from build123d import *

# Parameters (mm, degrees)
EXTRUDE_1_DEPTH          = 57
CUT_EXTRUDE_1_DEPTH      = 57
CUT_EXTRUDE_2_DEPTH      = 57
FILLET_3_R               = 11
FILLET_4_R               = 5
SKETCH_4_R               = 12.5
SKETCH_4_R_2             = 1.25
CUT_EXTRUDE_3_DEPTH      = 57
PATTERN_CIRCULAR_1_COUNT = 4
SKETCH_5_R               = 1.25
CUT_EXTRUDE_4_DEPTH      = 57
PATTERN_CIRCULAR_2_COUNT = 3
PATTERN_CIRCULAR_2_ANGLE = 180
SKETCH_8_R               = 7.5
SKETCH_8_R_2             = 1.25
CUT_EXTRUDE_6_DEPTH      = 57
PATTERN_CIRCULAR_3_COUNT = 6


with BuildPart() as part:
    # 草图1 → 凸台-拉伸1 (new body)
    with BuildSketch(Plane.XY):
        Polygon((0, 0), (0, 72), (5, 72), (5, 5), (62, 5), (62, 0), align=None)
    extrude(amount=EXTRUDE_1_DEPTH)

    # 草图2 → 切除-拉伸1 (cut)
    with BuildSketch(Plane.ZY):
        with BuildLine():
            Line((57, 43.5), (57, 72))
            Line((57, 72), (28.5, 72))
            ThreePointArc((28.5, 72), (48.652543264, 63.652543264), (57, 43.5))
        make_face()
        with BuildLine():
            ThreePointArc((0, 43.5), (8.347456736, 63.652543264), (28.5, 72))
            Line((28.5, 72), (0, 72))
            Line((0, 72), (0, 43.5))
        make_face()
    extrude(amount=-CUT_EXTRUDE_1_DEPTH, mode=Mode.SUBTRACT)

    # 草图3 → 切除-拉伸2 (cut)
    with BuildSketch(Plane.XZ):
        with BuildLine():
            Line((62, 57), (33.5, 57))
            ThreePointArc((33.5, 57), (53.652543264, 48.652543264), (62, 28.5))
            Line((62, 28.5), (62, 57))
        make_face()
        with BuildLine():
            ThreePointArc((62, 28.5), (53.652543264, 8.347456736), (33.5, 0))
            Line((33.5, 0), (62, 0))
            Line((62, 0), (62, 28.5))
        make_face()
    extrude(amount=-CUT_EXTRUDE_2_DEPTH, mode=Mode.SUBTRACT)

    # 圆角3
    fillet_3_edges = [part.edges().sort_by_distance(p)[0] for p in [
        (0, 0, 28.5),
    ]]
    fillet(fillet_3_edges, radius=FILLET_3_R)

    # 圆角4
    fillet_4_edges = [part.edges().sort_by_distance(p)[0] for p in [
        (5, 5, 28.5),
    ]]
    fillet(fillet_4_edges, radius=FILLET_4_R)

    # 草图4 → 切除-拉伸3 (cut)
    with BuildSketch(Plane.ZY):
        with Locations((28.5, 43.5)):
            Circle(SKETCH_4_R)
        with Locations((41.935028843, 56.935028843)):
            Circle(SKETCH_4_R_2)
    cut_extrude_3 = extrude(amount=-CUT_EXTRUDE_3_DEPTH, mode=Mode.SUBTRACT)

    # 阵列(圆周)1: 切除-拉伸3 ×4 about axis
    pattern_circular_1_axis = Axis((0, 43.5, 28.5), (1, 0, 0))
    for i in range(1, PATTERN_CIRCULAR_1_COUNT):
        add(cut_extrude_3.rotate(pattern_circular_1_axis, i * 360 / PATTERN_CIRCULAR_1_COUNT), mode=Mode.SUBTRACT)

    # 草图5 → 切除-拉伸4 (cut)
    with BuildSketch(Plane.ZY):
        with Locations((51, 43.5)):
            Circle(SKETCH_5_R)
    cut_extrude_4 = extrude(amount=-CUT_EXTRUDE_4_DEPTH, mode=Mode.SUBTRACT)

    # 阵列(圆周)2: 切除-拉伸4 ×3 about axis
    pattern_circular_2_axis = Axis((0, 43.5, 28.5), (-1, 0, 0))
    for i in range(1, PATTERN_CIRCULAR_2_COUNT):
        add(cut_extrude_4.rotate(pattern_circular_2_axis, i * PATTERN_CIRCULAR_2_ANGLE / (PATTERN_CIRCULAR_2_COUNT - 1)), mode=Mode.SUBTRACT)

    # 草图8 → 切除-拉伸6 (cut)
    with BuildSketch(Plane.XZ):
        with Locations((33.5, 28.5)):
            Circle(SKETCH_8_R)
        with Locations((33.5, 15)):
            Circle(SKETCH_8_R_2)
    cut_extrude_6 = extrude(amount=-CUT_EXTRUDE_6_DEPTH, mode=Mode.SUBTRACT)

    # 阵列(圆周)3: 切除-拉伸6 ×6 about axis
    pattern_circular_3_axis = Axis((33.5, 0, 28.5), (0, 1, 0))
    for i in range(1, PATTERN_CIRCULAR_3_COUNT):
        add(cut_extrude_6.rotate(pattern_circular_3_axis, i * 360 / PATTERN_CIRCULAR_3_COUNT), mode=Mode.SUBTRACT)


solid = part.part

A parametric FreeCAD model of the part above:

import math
import FreeCAD as App
import Part
import Sketcher

V = App.Vector
Q = App.Units.Quantity


def edges_at(feature, points):
    """Names of the edges that pass closest to the given points."""
    edges = feature.Shape.Edges
    near = lambda p: min(range(len(edges)), key=lambda i: edges[i].distToShape(Part.Vertex(*p))[0])
    return sorted({f"Edge{near(p) + 1}" for p in points})


def add_polygon(sketch, points):
    """Adds a closed chain of lines whose ends are joined by coincident constraints."""
    first, n = sketch.GeometryCount, len(points)
    for a, b in zip(points, points[1:] + points[:1]):
        sketch.addGeometry(Part.LineSegment(App.Vector(*a, 0), App.Vector(*b, 0)), False)
    for i in range(n):
        sketch.addConstraint(Sketcher.Constraint("Coincident", first + i, 2, first + (i + 1) % n, 1))

doc = App.newDocument("Part")
body = doc.addObject("PartDesign::Body", "Body")

sketch1 = doc.addObject("Sketcher::SketchObject", "Sketch")
body.addObject(sketch1)
sketch1.AttachmentSupport = (doc.XY_Plane, [""])
sketch1.MapMode = "FlatFace"
add_polygon(sketch1, [(0, 72), (0, 0), (62, 0), (62, 5), (5, 5), (5, 72)])
sketch1.addConstraint(Sketcher.Constraint("Vertical", 0))
sketch1.addConstraint(Sketcher.Constraint("Horizontal", 1))
sketch1.addConstraint(Sketcher.Constraint("Vertical", 2))
sketch1.addConstraint(Sketcher.Constraint("Horizontal", 3))
sketch1.addConstraint(Sketcher.Constraint("Vertical", 4))
sketch1.addConstraint(Sketcher.Constraint("Horizontal", 5))
sketch1.addConstraint(Sketcher.Constraint("Coincident", 0, 2, -1, 1))
sketch1.addConstraint(Sketcher.Constraint("Equal", 5, 2))
sketch1.addConstraint(Sketcher.Constraint("DistanceX", 1, 1, 1, 2, Q("62 mm")))
sketch1.addConstraint(Sketcher.Constraint("DistanceX", 3, 2, 3, 1, Q("57 mm")))
sketch1.addConstraint(Sketcher.Constraint("DistanceY", 0, 2, 0, 1, Q("72 mm")))
pad1 = doc.addObject("PartDesign::Pad", "Pad")
body.addObject(pad1)
pad1.Profile = sketch1
pad1.Length = 57

sketch2 = doc.addObject("Sketcher::SketchObject", "Sketch001")
body.addObject(sketch2)
sketch2.AttachmentSupport = (doc.YZ_Plane, [""])
sketch2.MapMode = "FlatFace"
sketch2.addGeometry(Part.LineSegment(V(43.5, 57, 0), V(72, 57, 0)), False)
sketch2.addGeometry(Part.LineSegment(V(72, 57, 0), V(72, 28.5, 0)), False)
sketch2.addGeometry(Part.ArcOfCircle(Part.Circle(V(43.5, 28.5, 0), V(0, 0, 1), 28.5), math.radians(0), math.radians(90)), False)
sketch2.addGeometry(Part.ArcOfCircle(Part.Circle(V(43.5, 28.5, 0), V(0, 0, 1), 28.5), math.radians(-90), math.radians(0)), False)
sketch2.addGeometry(Part.LineSegment(V(72, 28.5, 0), V(72, 0, 0)), False)
sketch2.addGeometry(Part.LineSegment(V(72, 0, 0), V(43.5, 0, 0)), False)
sketch2.addConstraint(Sketcher.Constraint("Coincident", 0, 2, 1, 1))
sketch2.addConstraint(Sketcher.Constraint("Tangent", 1, 2, 2, 1))
sketch2.addConstraint(Sketcher.Constraint("Tangent", 2, 2, 0, 1))
sketch2.addConstraint(Sketcher.Constraint("Tangent", 3, 2, 4, 1))
sketch2.addConstraint(Sketcher.Constraint("Coincident", 4, 2, 5, 1))
sketch2.addConstraint(Sketcher.Constraint("Tangent", 5, 2, 3, 1))
sketch2.addConstraint(Sketcher.Constraint("Horizontal", 0))
sketch2.addConstraint(Sketcher.Constraint("Vertical", 1))
sketch2.addConstraint(Sketcher.Constraint("Vertical", 4))
sketch2.addConstraint(Sketcher.Constraint("Horizontal", 5))
sketch2.addConstraint(Sketcher.Constraint("Coincident", 3, 3, 2, 3))
sketch2.addConstraint(Sketcher.Constraint("Equal", 2, 3))
sketch2.addConstraint(Sketcher.Constraint("PointOnObject", 4, 2, -1))
sketch2.addConstraint(Sketcher.Constraint("Radius", 2, Q("28.5 mm")))
sketch2.addConstraint(Sketcher.Constraint("DistanceX", -1, 1, 0, 2, Q("72 mm")))
pocket1 = doc.addObject("PartDesign::Pocket", "Pocket")
body.addObject(pocket1)
pocket1.Profile = sketch2
pocket1.Length = 57
pocket1.Reversed = True

sketch3 = doc.addObject("Sketcher::SketchObject", "Sketch002")
body.addObject(sketch3)
sketch3.AttachmentSupport = (doc.XZ_Plane, [""])
sketch3.MapMode = "FlatFace"
sketch3.addGeometry(Part.LineSegment(V(62, 57, 0), V(33.5, 57, 0)), False)
sketch3.addGeometry(Part.ArcOfCircle(Part.Circle(V(33.5, 28.5, 0), V(0, 0, 1), 28.5), math.radians(0), math.radians(90)), False)
sketch3.addGeometry(Part.LineSegment(V(62, 28.5, 0), V(62, 57, 0)), False)
sketch3.addGeometry(Part.ArcOfCircle(Part.Circle(V(33.5, 28.5, 0), V(0, 0, 1), 28.5), math.radians(-90), math.radians(0)), False)
sketch3.addGeometry(Part.LineSegment(V(33.5, 0, 0), V(62, 0, 0)), False)
sketch3.addGeometry(Part.LineSegment(V(62, 0, 0), V(62, 28.5, 0)), False)
sketch3.addConstraint(Sketcher.Constraint("Tangent", 0, 2, 1, 2))
sketch3.addConstraint(Sketcher.Constraint("Tangent", 1, 1, 2, 1))
sketch3.addConstraint(Sketcher.Constraint("Coincident", 2, 2, 0, 1))
sketch3.addConstraint(Sketcher.Constraint("Tangent", 3, 1, 4, 1))
sketch3.addConstraint(Sketcher.Constraint("Coincident", 4, 2, 5, 1))
sketch3.addConstraint(Sketcher.Constraint("Tangent", 5, 2, 3, 2))
sketch3.addConstraint(Sketcher.Constraint("Horizontal", 0))
sketch3.addConstraint(Sketcher.Constraint("Vertical", 2))
sketch3.addConstraint(Sketcher.Constraint("Horizontal", 4))
sketch3.addConstraint(Sketcher.Constraint("Vertical", 5))
sketch3.addConstraint(Sketcher.Constraint("Coincident", 3, 3, 1, 3))
sketch3.addConstraint(Sketcher.Constraint("Equal", 1, 3))
sketch3.addConstraint(Sketcher.Constraint("PointOnObject", 3, 1, -1))
sketch3.addConstraint(Sketcher.Constraint("Radius", 1, Q("28.5 mm")))
sketch3.addConstraint(Sketcher.Constraint("DistanceX", -1, 1, 1, 1, Q("62 mm")))
pocket2 = doc.addObject("PartDesign::Pocket", "Pocket001")
body.addObject(pocket2)
pocket2.Profile = sketch3
pocket2.Length = 57
doc.recompute()

fillet = doc.addObject("PartDesign::Fillet", "Fillet")
body.addObject(fillet)
fillet.Base = (pocket2, edges_at(pocket2, [(0, 0, 28.5)]))
fillet.Radius = 11
doc.recompute()

fillet2 = doc.addObject("PartDesign::Fillet", "Fillet001")
body.addObject(fillet2)
fillet2.Base = (fillet, edges_at(fillet, [(5, 5, 28.5)]))
fillet2.Radius = 5

sketch4 = doc.addObject("Sketcher::SketchObject", "Sketch003")
body.addObject(sketch4)
sketch4.AttachmentSupport = (doc.YZ_Plane, [""])
sketch4.MapMode = "FlatFace"
sketch4.addGeometry(Part.Circle(V(43.5, 28.5, 0), V(0, 0, 1), 12.5), False)
sketch4.addGeometry(Part.Circle(V(56.935029, 41.935029, 0), V(0, 0, 1), 1.25), False)
sketch4.addConstraint(Sketcher.Constraint("Diameter", 0, Q("25 mm")))
sketch4.addConstraint(Sketcher.Constraint("Diameter", 1, Q("2.5 mm")))
sketch4.addConstraint(Sketcher.Constraint("DistanceX", -1, 1, 0, 3, Q("43.5 mm")))
sketch4.addConstraint(Sketcher.Constraint("DistanceY", -1, 1, 0, 3, Q("28.5 mm")))
sketch4.addConstraint(Sketcher.Constraint("DistanceX", -1, 1, 1, 3, Q("56.935029 mm")))
sketch4.addConstraint(Sketcher.Constraint("DistanceY", -1, 1, 1, 3, Q("41.935029 mm")))
pocket3 = doc.addObject("PartDesign::Pocket", "Pocket002")
body.addObject(pocket3)
pocket3.Profile = sketch4
pocket3.Length = 57
pocket3.Reversed = True
doc.recompute()

datumline = doc.addObject("PartDesign::Line", "DatumLine")
body.addObject(datumline)
datumline.Placement = App.Placement(V(0, 43.5, 28.5), App.Rotation(V(0, 0, 1), V(1, 0, 0)))
polarpattern = doc.addObject("PartDesign::PolarPattern", "PolarPattern")
body.addObject(polarpattern)
polarpattern.Originals = [pocket3]
polarpattern.Axis = (datumline, [""])
polarpattern.Angle = 360
polarpattern.Occurrences = 4
body.Tip = polarpattern

sketch5 = doc.addObject("Sketcher::SketchObject", "Sketch004")
body.addObject(sketch5)
sketch5.AttachmentSupport = (doc.YZ_Plane, [""])
sketch5.MapMode = "FlatFace"
sketch5.addGeometry(Part.Circle(V(43.5, 51, 0), V(0, 0, 1), 1.25), False)
sketch5.addConstraint(Sketcher.Constraint("Diameter", 0, Q("2.5 mm")))
sketch5.addConstraint(Sketcher.Constraint("DistanceY", -1, 1, 0, 3, Q("51 mm")))
sketch5.addConstraint(Sketcher.Constraint("DistanceX", -1, 1, 0, 3, Q("43.5 mm")))
pocket4 = doc.addObject("PartDesign::Pocket", "Pocket003")
body.addObject(pocket4)
pocket4.Profile = sketch5
pocket4.Length = 57
pocket4.Reversed = True
doc.recompute()

datumline2 = doc.addObject("PartDesign::Line", "DatumLine001")
body.addObject(datumline2)
datumline2.Placement = App.Placement(V(0, 43.5, 28.5), App.Rotation(V(0, 0, 1), V(-1, 0, 0)))
polarpattern2 = doc.addObject("PartDesign::PolarPattern", "PolarPattern001")
body.addObject(polarpattern2)
polarpattern2.Originals = [pocket4]
polarpattern2.Axis = (datumline2, [""])
polarpattern2.Angle = 180
polarpattern2.Occurrences = 3
body.Tip = polarpattern2

sketch6 = doc.addObject("Sketcher::SketchObject", "Sketch005")
body.addObject(sketch6)
sketch6.AttachmentSupport = (doc.XZ_Plane, [""])
sketch6.MapMode = "FlatFace"
sketch6.addGeometry(Part.Circle(V(33.5, 28.5, 0), V(0, 0, 1), 7.5), False)
sketch6.addGeometry(Part.Circle(V(33.5, 15, 0), V(0, 0, 1), 1.25), False)
sketch6.addConstraint(Sketcher.Constraint("Vertical", 0, 3, 1, 3))
sketch6.addConstraint(Sketcher.Constraint("Diameter", 0, Q("15 mm")))
sketch6.addConstraint(Sketcher.Constraint("Diameter", 1, Q("2.5 mm")))
sketch6.addConstraint(Sketcher.Constraint("DistanceY", -1, 1, 1, 3, Q("15 mm")))
sketch6.addConstraint(Sketcher.Constraint("DistanceX", -1, 1, 0, 3, Q("33.5 mm")))
sketch6.addConstraint(Sketcher.Constraint("DistanceY", -1, 1, 0, 3, Q("28.5 mm")))
pocket5 = doc.addObject("PartDesign::Pocket", "Pocket004")
body.addObject(pocket5)
pocket5.Profile = sketch6
pocket5.Length = 57
doc.recompute()

datumline3 = doc.addObject("PartDesign::Line", "DatumLine002")
body.addObject(datumline3)
datumline3.Placement = App.Placement(V(33.5, 0, 28.5), App.Rotation(V(0, 0, 1), V(0, 1, 0)))
polarpattern3 = doc.addObject("PartDesign::PolarPattern", "PolarPattern002")
body.addObject(polarpattern3)
polarpattern3.Originals = [pocket5]
polarpattern3.Axis = (datumline3, [""])
polarpattern3.Angle = 360
polarpattern3.Occurrences = 6
body.Tip = polarpattern3

doc.recompute()
